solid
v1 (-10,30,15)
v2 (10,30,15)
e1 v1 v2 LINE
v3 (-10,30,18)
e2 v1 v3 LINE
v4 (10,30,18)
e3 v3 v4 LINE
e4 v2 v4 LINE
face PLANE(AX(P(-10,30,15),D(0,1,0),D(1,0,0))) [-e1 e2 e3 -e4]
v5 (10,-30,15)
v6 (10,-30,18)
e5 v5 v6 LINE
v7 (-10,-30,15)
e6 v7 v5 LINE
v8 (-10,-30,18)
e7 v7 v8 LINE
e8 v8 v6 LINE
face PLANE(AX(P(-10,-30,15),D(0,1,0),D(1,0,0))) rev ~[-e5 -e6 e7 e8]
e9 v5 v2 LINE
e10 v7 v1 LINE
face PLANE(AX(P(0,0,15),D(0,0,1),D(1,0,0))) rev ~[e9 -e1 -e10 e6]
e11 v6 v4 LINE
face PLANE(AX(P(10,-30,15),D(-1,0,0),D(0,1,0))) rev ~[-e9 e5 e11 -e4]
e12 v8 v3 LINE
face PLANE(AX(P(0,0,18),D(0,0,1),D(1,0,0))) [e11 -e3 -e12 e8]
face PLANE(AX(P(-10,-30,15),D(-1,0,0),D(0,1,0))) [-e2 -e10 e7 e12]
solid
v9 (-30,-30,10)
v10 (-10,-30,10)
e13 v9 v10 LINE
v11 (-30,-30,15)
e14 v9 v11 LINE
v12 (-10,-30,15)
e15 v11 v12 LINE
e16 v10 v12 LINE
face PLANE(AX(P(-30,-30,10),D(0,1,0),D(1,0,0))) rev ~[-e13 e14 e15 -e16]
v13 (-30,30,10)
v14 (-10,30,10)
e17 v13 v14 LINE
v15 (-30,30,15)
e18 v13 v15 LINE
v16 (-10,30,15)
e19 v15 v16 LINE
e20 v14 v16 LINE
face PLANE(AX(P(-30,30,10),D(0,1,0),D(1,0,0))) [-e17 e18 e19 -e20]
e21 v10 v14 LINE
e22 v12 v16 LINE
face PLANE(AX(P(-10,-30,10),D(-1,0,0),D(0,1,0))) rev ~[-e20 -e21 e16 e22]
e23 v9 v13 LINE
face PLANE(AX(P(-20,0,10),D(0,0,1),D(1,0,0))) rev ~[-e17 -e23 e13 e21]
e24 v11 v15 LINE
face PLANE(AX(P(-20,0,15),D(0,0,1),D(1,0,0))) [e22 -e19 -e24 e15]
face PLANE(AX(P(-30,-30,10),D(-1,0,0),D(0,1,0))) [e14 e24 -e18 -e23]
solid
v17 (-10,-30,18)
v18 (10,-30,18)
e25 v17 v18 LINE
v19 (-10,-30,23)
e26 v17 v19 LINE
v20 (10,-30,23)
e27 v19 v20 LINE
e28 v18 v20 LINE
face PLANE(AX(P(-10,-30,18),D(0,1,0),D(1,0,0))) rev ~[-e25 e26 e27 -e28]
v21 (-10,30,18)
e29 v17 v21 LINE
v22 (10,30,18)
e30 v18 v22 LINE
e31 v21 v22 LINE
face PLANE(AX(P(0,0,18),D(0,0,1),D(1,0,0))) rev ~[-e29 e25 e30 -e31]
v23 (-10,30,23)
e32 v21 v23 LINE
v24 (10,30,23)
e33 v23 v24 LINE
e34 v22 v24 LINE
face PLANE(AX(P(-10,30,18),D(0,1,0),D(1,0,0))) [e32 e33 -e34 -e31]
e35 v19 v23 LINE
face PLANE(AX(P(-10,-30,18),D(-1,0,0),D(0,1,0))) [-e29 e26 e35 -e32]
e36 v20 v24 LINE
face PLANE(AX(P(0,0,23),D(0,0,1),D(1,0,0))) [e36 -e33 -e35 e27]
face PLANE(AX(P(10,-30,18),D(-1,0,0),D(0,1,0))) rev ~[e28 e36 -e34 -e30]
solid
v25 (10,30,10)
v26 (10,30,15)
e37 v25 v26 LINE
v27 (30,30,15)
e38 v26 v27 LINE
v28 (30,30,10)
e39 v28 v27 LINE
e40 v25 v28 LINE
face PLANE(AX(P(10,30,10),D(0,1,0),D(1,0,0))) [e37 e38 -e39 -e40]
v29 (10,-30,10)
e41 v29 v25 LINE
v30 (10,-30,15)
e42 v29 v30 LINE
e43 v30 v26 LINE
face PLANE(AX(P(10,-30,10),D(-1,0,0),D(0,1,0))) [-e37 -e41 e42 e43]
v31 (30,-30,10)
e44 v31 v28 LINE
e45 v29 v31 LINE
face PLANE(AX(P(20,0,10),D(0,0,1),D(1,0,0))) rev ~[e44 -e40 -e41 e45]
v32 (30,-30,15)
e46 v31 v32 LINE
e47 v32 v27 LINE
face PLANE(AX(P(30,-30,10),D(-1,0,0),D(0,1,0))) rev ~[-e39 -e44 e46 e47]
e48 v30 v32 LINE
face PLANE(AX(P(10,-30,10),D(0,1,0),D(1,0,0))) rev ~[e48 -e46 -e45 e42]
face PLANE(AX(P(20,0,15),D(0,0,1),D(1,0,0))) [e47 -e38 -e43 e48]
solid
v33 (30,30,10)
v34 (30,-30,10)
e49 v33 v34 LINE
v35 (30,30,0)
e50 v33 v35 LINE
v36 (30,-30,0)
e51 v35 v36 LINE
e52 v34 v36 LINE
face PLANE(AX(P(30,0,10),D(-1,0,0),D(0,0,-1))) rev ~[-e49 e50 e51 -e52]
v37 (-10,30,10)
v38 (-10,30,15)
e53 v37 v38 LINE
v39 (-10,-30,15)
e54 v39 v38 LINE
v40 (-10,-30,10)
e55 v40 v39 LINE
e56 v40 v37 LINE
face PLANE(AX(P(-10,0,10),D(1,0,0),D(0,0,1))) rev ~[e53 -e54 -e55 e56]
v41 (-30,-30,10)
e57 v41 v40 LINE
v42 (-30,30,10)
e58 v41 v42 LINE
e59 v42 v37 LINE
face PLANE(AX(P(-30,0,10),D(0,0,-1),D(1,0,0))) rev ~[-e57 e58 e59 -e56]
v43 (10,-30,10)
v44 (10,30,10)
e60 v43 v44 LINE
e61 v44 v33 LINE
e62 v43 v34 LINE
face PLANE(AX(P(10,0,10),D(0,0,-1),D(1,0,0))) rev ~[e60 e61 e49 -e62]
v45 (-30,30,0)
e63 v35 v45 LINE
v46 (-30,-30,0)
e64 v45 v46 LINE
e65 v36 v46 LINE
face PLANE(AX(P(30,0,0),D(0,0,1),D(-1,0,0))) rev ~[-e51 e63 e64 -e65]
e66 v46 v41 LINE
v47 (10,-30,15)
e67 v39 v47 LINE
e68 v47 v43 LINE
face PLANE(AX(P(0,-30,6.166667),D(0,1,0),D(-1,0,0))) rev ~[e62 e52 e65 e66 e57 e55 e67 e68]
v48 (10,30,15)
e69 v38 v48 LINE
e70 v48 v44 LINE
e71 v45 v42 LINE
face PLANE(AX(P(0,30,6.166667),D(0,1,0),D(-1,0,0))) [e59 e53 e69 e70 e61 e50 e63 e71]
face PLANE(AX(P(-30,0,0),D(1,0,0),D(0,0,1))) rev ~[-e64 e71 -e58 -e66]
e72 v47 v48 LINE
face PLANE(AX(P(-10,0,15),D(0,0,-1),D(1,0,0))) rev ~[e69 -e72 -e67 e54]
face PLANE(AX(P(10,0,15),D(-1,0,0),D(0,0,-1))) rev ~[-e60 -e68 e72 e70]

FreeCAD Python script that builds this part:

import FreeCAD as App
import Part
import Sketcher

V = App.Vector
Q = App.Units.Quantity


def add_polygon(sketch, points):
    """Adds a closed chain of lines whose ends are joined by coincident constraints."""
    first, n = sketch.GeometryCount, len(points)
    for a, b in zip(points, points[1:] + points[:1]):
        sketch.addGeometry(Part.LineSegment(App.Vector(*a, 0), App.Vector(*b, 0)), False)
    for i in range(n):
        sketch.addConstraint(Sketcher.Constraint("Coincident", first + i, 2, first + (i + 1) % n, 1))

doc = App.newDocument("Part")
params = doc.addObject("Spreadsheet::Sheet", "Params")
for row, (alias, value) in enumerate([
    ("sketch1_width", "60 mm"),
    ("sketch1_height", "10 mm"),
    ("sketch1_height2", "5 mm"),
    ("pad1_length", "60 mm"),
    ("sketch2_width", "20 mm"),
    ("sketch2_height", "60 mm"),
    ("pad2_length", "5 mm"),
    ("sketch3_width", "20 mm"),
    ("sketch3_height", "60 mm"),
    ("pad3_length", "3 mm"),
    ("sketch4_width", "20 mm"),
    ("sketch4_height", "60 mm"),
    ("pad4_length", "5 mm"),
], start=1):
    params.set(f"A{row}", alias)
    params.set(f"B{row}", "=" + value)
    params.setAlias(f"B{row}", alias)

body = doc.addObject("PartDesign::Body", "Body")

# Sketch on XZ plane
sketch1 = body.newObject("Sketcher::SketchObject", "Sketch")
sketch1.AttachmentSupport = (doc.getObject("XZ_Plane"), [""])
sketch1.MapMode = "FlatFace"
add_polygon(sketch1, [(-30, 10), (-30, 0), (30, 0), (30, 10), (10, 10), (10, 15), (-10, 15), (-10, 10)])  # lines 0-7
sketch1.addConstraint([
    Sketcher.Constraint("Vertical", 0),
    Sketcher.Constraint("Horizontal", 1),
    Sketcher.Constraint("Vertical", 2),
    Sketcher.Constraint("Horizontal", 3),
    Sketcher.Constraint("Vertical", 4),
    Sketcher.Constraint("Horizontal", 5),
    Sketcher.Constraint("Vertical", 6),
    Sketcher.Constraint("Horizontal", 7),
    Sketcher.Constraint("Symmetric", 0, 2, 1, 2, -1, 1),
    Sketcher.Constraint("Symmetric", 3, 2, 6, 2, -2),
    Sketcher.Constraint("Equal", 3, 5),
    Sketcher.Constraint("DistanceX", 1, 1, 1, 2, Q("60 mm")),
    Sketcher.Constraint("DistanceY", 0, 2, 0, 1, Q("10 mm")),
    Sketcher.Constraint("DistanceY", 4, 1, 4, 2, Q("5 mm")),
])
sketch1.setExpression("Constraints[19]", "Params.sketch1_width")
sketch1.setExpression("Constraints[20]", "Params.sketch1_height")
sketch1.setExpression("Constraints[21]", "Params.sketch1_height2")
pad1 = body.newObject("PartDesign::Pad", "Pad")
pad1.Profile = sketch1
pad1.setExpression("Length", "Params.pad1_length")
pad1.Midplane = True
body2 = doc.addObject("PartDesign::Body", "Body001")
body2.AllowCompound = True

# Sketch on XY plane
sketch2 = body2.newObject("Sketcher::SketchObject", "Sketch001")
sketch2.AttachmentSupport = (doc.getObject("XY_Plane001"), [""])
sketch2.MapMode = "FlatFace"
sketch2.AttachmentOffset = App.Placement(V(0, 0, 10), App.Rotation())
add_polygon(sketch2, [(-30, 30), (-30, -30), (-10, -30), (-10, 30)])  # lines 0-3
add_polygon(sketch2, [(10, 30), (10, -30), (30, -30), (30, 30)])  # lines 4-7
sketch2.addConstraint([
    Sketcher.Constraint("Vertical", 0),
    Sketcher.Constraint("Horizontal", 1),
    Sketcher.Constraint("Vertical", 2),
    Sketcher.Constraint("Horizontal", 3),
    Sketcher.Constraint("Vertical", 4),
    Sketcher.Constraint("Horizontal", 5),
    Sketcher.Constraint("Vertical", 6),
    Sketcher.Constraint("Horizontal", 7),
    Sketcher.Constraint("Symmetric", 2, 2, 4, 2, -1, 1),
    Sketcher.Constraint("Symmetric", 0, 2, 6, 2, -1, 1),
    Sketcher.Constraint("Horizontal", 1, 2, 4, 2),
    Sketcher.Constraint("DistanceX", 1, 1, 1, 2, Q("20 mm")),
    Sketcher.Constraint("DistanceY", 0, 2, 0, 1, Q("60 mm")),
    Sketcher.Constraint("DistanceX", 0, 2, -1, 1, Q("30 mm")),
])
sketch2.setExpression("Constraints[19]", "Params.sketch2_width")
sketch2.setExpression("Constraints[20]", "Params.sketch2_height")
pad2 = body2.newObject("PartDesign::Pad", "Pad001")
pad2.Profile = sketch2
pad2.setExpression("Length", "Params.pad2_length")
body3 = doc.addObject("PartDesign::Body", "Body002")

# Sketch on XY plane
sketch3 = body3.newObject("Sketcher::SketchObject", "Sketch002")
sketch3.AttachmentSupport = (doc.getObject("XY_Plane002"), [""])
sketch3.MapMode = "FlatFace"
sketch3.AttachmentOffset = App.Placement(V(0, 0, 15), App.Rotation())
add_polygon(sketch3, [(-10, 30), (-10, -30), (10, -30), (10, 30)])  # lines 0-3
sketch3.addConstraint([
    Sketcher.Constraint("Vertical", 0),
    Sketcher.Constraint("Horizontal", 1),
    Sketcher.Constraint("Vertical", 2),
    Sketcher.Constraint("Horizontal", 3),
    Sketcher.Constraint("Symmetric", 0, 2, 2, 2, -1, 1),
    Sketcher.Constraint("DistanceX", 1, 1, 1, 2, Q("20 mm")),
    Sketcher.Constraint("DistanceY", 0, 2, 0, 1, Q("60 mm")),
])
sketch3.setExpression("Constraints[9]", "Params.sketch3_width")
sketch3.setExpression("Constraints[10]", "Params.sketch3_height")
pad3 = body3.newObject("PartDesign::Pad", "Pad002")
pad3.Profile = sketch3
pad3.setExpression("Length", "Params.pad3_length")
body4 = doc.addObject("PartDesign::Body", "Body003")

# Sketch on XY plane
sketch4 = body4.newObject("Sketcher::SketchObject", "Sketch003")
sketch4.AttachmentSupport = (doc.getObject("XY_Plane003"), [""])
sketch4.MapMode = "FlatFace"
sketch4.AttachmentOffset = App.Placement(V(0, 0, 18), App.Rotation())
add_polygon(sketch4, [(-10, 30), (-10, -30), (10, -30), (10, 30)])  # lines 0-3
sketch4.addConstraint([
    Sketcher.Constraint("Vertical", 0),
    Sketcher.Constraint("Horizontal", 1),
    Sketcher.Constraint("Vertical", 2),
    Sketcher.Constraint("Horizontal", 3),
    Sketcher.Constraint("Symmetric", 0, 2, 2, 2, -1, 1),
    Sketcher.Constraint("DistanceX", 1, 1, 1, 2, Q("20 mm")),
    Sketcher.Constraint("DistanceY", 0, 2, 0, 1, Q("60 mm")),
])
sketch4.setExpression("Constraints[9]", "Params.sketch4_width")
sketch4.setExpression("Constraints[10]", "Params.sketch4_height")
pad4 = body4.newObject("PartDesign::Pad", "Pad003")
pad4.Profile = sketch4
pad4.setExpression("Length", "Params.pad4_length")

doc.recompute()
